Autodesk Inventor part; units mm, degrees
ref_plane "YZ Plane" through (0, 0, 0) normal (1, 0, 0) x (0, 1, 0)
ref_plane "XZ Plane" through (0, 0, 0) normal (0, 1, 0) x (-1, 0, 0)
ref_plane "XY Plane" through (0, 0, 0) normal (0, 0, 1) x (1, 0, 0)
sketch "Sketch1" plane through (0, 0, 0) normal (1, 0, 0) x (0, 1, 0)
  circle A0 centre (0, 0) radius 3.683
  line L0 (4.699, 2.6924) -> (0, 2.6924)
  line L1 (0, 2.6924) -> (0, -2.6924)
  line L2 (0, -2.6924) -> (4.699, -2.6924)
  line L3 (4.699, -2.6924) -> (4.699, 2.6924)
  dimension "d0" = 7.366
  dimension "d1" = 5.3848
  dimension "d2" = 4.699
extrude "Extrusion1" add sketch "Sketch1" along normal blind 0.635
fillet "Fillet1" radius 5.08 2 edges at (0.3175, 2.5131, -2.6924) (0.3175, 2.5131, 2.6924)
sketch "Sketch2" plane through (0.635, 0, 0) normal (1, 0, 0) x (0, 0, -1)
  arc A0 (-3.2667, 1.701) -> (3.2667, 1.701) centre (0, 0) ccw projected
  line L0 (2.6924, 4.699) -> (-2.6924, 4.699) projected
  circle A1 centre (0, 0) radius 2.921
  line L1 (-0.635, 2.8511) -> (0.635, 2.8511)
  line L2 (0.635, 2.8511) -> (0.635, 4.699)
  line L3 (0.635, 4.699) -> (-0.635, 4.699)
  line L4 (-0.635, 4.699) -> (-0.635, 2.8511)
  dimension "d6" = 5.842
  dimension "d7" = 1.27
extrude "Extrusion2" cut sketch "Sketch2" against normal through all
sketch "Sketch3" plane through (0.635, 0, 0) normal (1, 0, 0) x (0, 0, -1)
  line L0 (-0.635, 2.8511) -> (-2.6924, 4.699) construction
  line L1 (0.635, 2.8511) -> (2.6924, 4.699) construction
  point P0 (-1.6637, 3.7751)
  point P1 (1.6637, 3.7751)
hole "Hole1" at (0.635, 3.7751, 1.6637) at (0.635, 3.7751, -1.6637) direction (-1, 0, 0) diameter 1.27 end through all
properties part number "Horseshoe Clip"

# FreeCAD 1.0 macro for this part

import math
import FreeCAD as App
import Part
import Sketcher
Q = App.Units.Quantity


def edges_at(feature, points):
    """Names of the edges that pass closest to the given points."""
    edges = feature.Shape.Edges
    near = lambda p: min(range(len(edges)), key=lambda i: edges[i].distToShape(Part.Vertex(*p))[0])
    return sorted({f"Edge{near(p) + 1}" for p in points})

doc = App.newDocument("Part")
params = doc.addObject("Spreadsheet::Sheet", "Params")
for row, (alias, value) in enumerate([
    ("sketch1_radius", "0.145 in"),
    ("sketch1_height", "0.212 in"),
    ("pad1_length", "0.025 in"),
    ("fillet_radius", "0.2 in"),
    ("sketch2_radius", "0.115 in"),
    ("sketch2_height", "0.05 in"),
    ("sketch3_diameter", "0.05 in"),
    ("hole_diameter", "0.05 in"),
], start=1):
    params.set(f"A{row}", alias)
    params.set(f"B{row}", "=" + value)
    params.setAlias(f"B{row}", alias)

body = doc.addObject("PartDesign::Body", "Body")

sketch1 = body.newObject("Sketcher::SketchObject", "Sketch")
sketch1.AttachmentSupport = (doc.getObject("YZ_Plane"), [""])
sketch1.MapMode = "FlatFace"
sketch1.addGeometry(Part.LineSegment(App.Vector(2.5, -2.7, 0), App.Vector(4.7, -2.7, 0)), False)
sketch1.addGeometry(Part.LineSegment(App.Vector(4.7, -2.7, 0), App.Vector(4.7, 2.7, 0)), False)
sketch1.addGeometry(Part.LineSegment(App.Vector(4.7, 2.7, 0), App.Vector(2.5, 2.7, 0)), False)
sketch1.addGeometry(Part.ArcOfCircle(Part.Circle(App.Vector(0, 0, 0), App.Vector(0, 0, 1), 3.7), math.radians(47), math.radians(313)), False)
sketch1.addConstraint(Sketcher.Constraint("Coincident", 0, 2, 1, 1))
sketch1.addConstraint(Sketcher.Constraint("Coincident", 1, 2, 2, 1))
sketch1.addConstraint(Sketcher.Constraint("Coincident", 2, 2, 3, 1))
sketch1.addConstraint(Sketcher.Constraint("Coincident", 3, 2, 0, 1))
sketch1.addConstraint(Sketcher.Constraint("Horizontal", 0))
sketch1.addConstraint(Sketcher.Constraint("Vertical", 1))
sketch1.addConstraint(Sketcher.Constraint("Horizontal", 2))
sketch1.addConstraint(Sketcher.Constraint("Coincident", 3, 3, -1, 1))
sketch1.addConstraint(Sketcher.Constraint("Vertical", 2, 2, 3, 2))
sketch1.addConstraint(Sketcher.Constraint("Radius", 3, Q("0.145 in")))
sketch1.addConstraint(Sketcher.Constraint("DistanceY", 1, 1, 1, 2, Q("0.212 in")))
sketch1.addConstraint(Sketcher.Constraint("DistanceX", -1, 1, 0, 2, Q("0.185 in")))
sketch1.setExpression("Constraints[9]", "Params.sketch1_radius")
sketch1.setExpression("Constraints[10]", "Params.sketch1_height")
pad1 = body.newObject("PartDesign::Pad", "Pad")
pad1.Profile = sketch1
pad1.setExpression("Length", "Params.pad1_length")
doc.recompute()

fillet = body.newObject("PartDesign::Fillet", "Fillet")
fillet.Base = (pad1, edges_at(pad1, [(0.318, 2.513, -2.692), (0.318, 2.513, 2.692)]))
fillet.setExpression("Radius", "Params.fillet_radius")

sketch2 = body.newObject("Sketcher::SketchObject", "Sketch001")
sketch2.AttachmentSupport = (doc.getObject("YZ_Plane"), [""])
sketch2.MapMode = "FlatFace"
sketch2.AttachmentOffset = App.Placement(App.Vector(0, 0, 0.025 * 25.4), App.Rotation())
sketch2.addGeometry(Part.LineSegment(App.Vector(2.9, -0.6, 0), App.Vector(4.7, -0.6, 0)), False)
sketch2.addGeometry(Part.LineSegment(App.Vector(4.7, -0.6, 0), App.Vector(4.7, 0.6, 0)), False)
sketch2.addGeometry(Part.LineSegment(App.Vector(4.7, 0.6, 0), App.Vector(2.9, 0.6, 0)), False)
sketch2.addGeometry(Part.ArcOfCircle(Part.Circle(App.Vector(0, 0, 0), App.Vector(0, 0, 1), 2.9), math.radians(13), math.radians(347)), False)
sketch2.addConstraint(Sketcher.Constraint("Coincident", 0, 2, 1, 1))
sketch2.addConstraint(Sketcher.Constraint("Coincident", 1, 2, 2, 1))
sketch2.addConstraint(Sketcher.Constraint("Coincident", 2, 2, 3, 1))
sketch2.addConstraint(Sketcher.Constraint("Coincident", 3, 2, 0, 1))
sketch2.addConstraint(Sketcher.Constraint("Horizontal", 0))
sketch2.addConstraint(Sketcher.Constraint("Vertical", 1))
sketch2.addConstraint(Sketcher.Constraint("Horizontal", 2))
sketch2.addConstraint(Sketcher.Constraint("Coincident", 3, 3, -1, 1))
sketch2.addConstraint(Sketcher.Constraint("Vertical", 2, 2, 3, 2))
sketch2.addConstraint(Sketcher.Constraint("Radius", 3, Q("0.115 in")))
sketch2.addConstraint(Sketcher.Constraint("DistanceY", 1, 1, 1, 2, Q("0.05 in")))
sketch2.addConstraint(Sketcher.Constraint("DistanceX", -1, 1, 0, 2, Q("0.185 in")))
sketch2.setExpression("Constraints[9]", "Params.sketch2_radius")
sketch2.setExpression("Constraints[10]", "Params.sketch2_height")
pocket1 = body.newObject("PartDesign::Pocket", "Pocket")
pocket1.Profile = sketch2
pocket1.Type = "ThroughAll"

sketch3 = body.newObject("Sketcher::SketchObject", "Sketch002")
sketch3.AttachmentSupport = (doc.getObject("YZ_Plane"), [""])
sketch3.MapMode = "FlatFace"
sketch3.AttachmentOffset = App.Placement(App.Vector(0, 0, 0.025 * 25.4), App.Rotation())
sketch3.addGeometry(Part.Circle(App.Vector(3.8, 1.7, 0), App.Vector(0, 0, 1), 0.6), False)
sketch3.addGeometry(Part.Circle(App.Vector(3.8, -1.7, 0), App.Vector(0, 0, 1), 0.6), False)
sketch3.addConstraint(Sketcher.Constraint("Equal", 0, 1))
sketch3.addConstraint(Sketcher.Constraint("Symmetric", 0, 3, 1, 3, -1))
sketch3.addConstraint(Sketcher.Constraint("Diameter", 0, Q("0.05 in")))
sketch3.addConstraint(Sketcher.Constraint("DistanceY", 1, 3, 0, 3, Q("0.131 in")))
sketch3.addConstraint(Sketcher.Constraint("DistanceX", -1, 1, 0, 3, 3.775))
sketch3.setExpression("Constraints[2]", "Params.sketch3_diameter")
doc.recompute()
hole = body.newObject("PartDesign::Hole", "Hole")
hole.Profile = sketch3
hole.ThreadType = "None"
hole.setExpression("Diameter", "Params.hole_diameter")
hole.DepthType = "ThroughAll"

doc.recompute()
